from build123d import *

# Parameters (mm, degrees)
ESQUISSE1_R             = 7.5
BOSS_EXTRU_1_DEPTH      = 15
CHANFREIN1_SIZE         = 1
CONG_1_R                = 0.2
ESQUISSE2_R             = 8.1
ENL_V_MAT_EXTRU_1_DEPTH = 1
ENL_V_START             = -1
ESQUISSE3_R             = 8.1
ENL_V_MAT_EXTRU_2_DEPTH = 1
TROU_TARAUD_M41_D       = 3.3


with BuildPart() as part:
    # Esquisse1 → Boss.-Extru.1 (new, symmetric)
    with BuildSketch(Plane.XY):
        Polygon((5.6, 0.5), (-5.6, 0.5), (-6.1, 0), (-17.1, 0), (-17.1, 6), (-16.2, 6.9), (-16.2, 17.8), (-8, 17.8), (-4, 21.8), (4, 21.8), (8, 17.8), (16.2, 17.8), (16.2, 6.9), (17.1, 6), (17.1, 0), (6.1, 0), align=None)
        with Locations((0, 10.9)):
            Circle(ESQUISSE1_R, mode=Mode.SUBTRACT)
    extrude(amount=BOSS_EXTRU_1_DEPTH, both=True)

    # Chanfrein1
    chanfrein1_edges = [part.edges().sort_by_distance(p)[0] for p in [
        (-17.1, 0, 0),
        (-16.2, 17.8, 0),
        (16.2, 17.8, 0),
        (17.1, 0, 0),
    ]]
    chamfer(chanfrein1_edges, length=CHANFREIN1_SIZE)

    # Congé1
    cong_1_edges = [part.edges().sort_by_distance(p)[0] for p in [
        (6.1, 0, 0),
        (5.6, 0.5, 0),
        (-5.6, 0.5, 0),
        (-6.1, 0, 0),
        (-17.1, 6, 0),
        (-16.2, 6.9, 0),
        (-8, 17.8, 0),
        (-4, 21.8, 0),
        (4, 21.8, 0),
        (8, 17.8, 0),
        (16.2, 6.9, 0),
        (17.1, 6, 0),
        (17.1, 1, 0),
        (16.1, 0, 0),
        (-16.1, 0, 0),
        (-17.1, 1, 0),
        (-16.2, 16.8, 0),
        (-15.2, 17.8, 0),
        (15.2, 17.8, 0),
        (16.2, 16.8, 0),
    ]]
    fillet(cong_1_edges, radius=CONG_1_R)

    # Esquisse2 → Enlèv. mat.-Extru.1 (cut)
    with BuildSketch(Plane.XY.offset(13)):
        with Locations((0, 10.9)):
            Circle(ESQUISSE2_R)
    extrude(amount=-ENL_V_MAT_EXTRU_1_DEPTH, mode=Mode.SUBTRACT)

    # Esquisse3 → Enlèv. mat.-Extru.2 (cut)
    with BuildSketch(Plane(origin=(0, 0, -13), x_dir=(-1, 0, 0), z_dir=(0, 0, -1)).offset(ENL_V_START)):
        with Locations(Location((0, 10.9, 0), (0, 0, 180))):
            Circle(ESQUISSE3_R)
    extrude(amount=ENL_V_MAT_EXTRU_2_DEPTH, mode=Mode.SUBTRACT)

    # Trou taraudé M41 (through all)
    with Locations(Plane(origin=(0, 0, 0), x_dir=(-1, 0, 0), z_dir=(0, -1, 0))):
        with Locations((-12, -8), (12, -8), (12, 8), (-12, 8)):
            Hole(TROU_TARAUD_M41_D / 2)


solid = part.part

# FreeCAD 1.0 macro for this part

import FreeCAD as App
import Part
import Sketcher
from FreeCAD import Vector
Q = App.Units.Quantity


def edges_at(feature, points):
    """Names of the edges that pass closest to the given points."""
    edges = feature.Shape.Edges
    near = lambda p: min(range(len(edges)), key=lambda i: edges[i].distToShape(Part.Vertex(*p))[0])
    return sorted({f"Edge{near(p) + 1}" for p in points})

doc = App.newDocument("Part")
params = doc.addObject("Spreadsheet::Sheet", "Params")
for row, (alias, value) in enumerate([
    ("sketch1_diameter", "15 mm"),
    ("sketch1_width", "11 mm"),
    ("sketch1_width2", "8 mm"),
    ("sketch1_height", "6 mm"),
    ("sketch1_width3", "11.2 mm"),
    ("pad1_length", "30 mm"),
    ("chamfer_size", "1 mm"),
    ("fillet_radius", "0.2 mm"),
    ("sketch2_diameter", "16.2 mm"),
    ("pocket1_length", "1 mm"),
    ("sketch3_diameter", "16.2 mm"),
    ("pocket2_length", "1 mm"),
    ("sketch4_diameter", "3.3 mm"),
    ("hole_diameter", "3.3 mm"),
], start=1):
    params.set(f"A{row}", alias)
    params.set(f"B{row}", "=" + value)
    params.setAlias(f"B{row}", alias)

body = doc.addObject("PartDesign::Body", "Body")

# Sketch on XY plane
sketch1 = body.newObject("Sketcher::SketchObject", "Sketch")
sketch1.AttachmentSupport = (doc.getObject("XY_Plane"), [""])
sketch1.MapMode = "FlatFace"
sketch1.addGeometry([
    Part.LineSegment(Vector(-5.6, 0.5, 0), Vector(5.6, 0.5, 0)),  # 0
    Part.LineSegment(Vector(5.6, 0.5, 0), Vector(6.1, 0, 0)),  # 1
    Part.LineSegment(Vector(6.1, 0, 0), Vector(17.1, 0, 0)),  # 2
    Part.LineSegment(Vector(17.1, 0, 0), Vector(17.1, 6, 0)),  # 3
    Part.LineSegment(Vector(17.1, 6, 0), Vector(16.2, 6.9, 0)),  # 4
    Part.LineSegment(Vector(16.2, 6.9, 0), Vector(16.2, 17.8, 0)),  # 5
    Part.LineSegment(Vector(16.2, 17.8, 0), Vector(8, 17.8, 0)),  # 6
    Part.LineSegment(Vector(8, 17.8, 0), Vector(4, 21.8, 0)),  # 7
    Part.LineSegment(Vector(4, 21.8, 0), Vector(-4, 21.8, 0)),  # 8
    Part.LineSegment(Vector(-4, 21.8, 0), Vector(-8, 17.8, 0)),  # 9
    Part.LineSegment(Vector(-8, 17.8, 0), Vector(-16.2, 17.8, 0)),  # 10
    Part.LineSegment(Vector(-16.2, 17.8, 0), Vector(-16.2, 6.9, 0)),  # 11
    Part.LineSegment(Vector(-16.2, 6.9, 0), Vector(-17.1, 6, 0)),  # 12
    Part.LineSegment(Vector(-17.1, 6, 0), Vector(-17.1, 0, 0)),  # 13
    Part.LineSegment(Vector(-17.1, 0, 0), Vector(-6.1, 0, 0)),  # 14
    Part.LineSegment(Vector(-6.1, 0, 0), Vector(-5.6, 0.5, 0)),  # 15
    Part.Circle(Vector(0, 10.9, 0), Vector(0, 0, 1), 7.5),  # 16
], False)
sketch1.addConstraint([
    Sketcher.Constraint("Coincident", 0, 2, 1, 1),
    Sketcher.Constraint("Coincident", 1, 2, 2, 1),
    Sketcher.Constraint("Coincident", 2, 2, 3, 1),
    Sketcher.Constraint("Coincident", 3, 2, 4, 1),
    Sketcher.Constraint("Coincident", 4, 2, 5, 1),
    Sketcher.Constraint("Coincident", 5, 2, 6, 1),
    Sketcher.Constraint("Coincident", 6, 2, 7, 1),
    Sketcher.Constraint("Coincident", 7, 2, 8, 1),
    Sketcher.Constraint("Coincident", 8, 2, 9, 1),
    Sketcher.Constraint("Coincident", 9, 2, 10, 1),
    Sketcher.Constraint("Coincident", 10, 2, 11, 1),
    Sketcher.Constraint("Coincident", 11, 2, 12, 1),
    Sketcher.Constraint("Coincident", 12, 2, 13, 1),
    Sketcher.Constraint("Coincident", 13, 2, 14, 1),
    Sketcher.Constraint("Coincident", 14, 2, 15, 1),
    Sketcher.Constraint("Coincident", 15, 2, 0, 1),
    Sketcher.Constraint("Horizontal", 0),
    Sketcher.Constraint("Horizontal", 2),
    Sketcher.Constraint("Vertical", 3),
    Sketcher.Constraint("Vertical", 5),
    Sketcher.Constraint("Horizontal", 6),
    Sketcher.Constraint("Horizontal", 8),
    Sketcher.Constraint("Horizontal", 10),
    Sketcher.Constraint("Vertical", 11),
    Sketcher.Constraint("Vertical", 13),
    Sketcher.Constraint("Horizontal", 14),
    Sketcher.Constraint("Symmetric", 2, 2, 13, 2, -1, 1),
    Sketcher.Constraint("Symmetric", 6, 2, 9, 2, -2),
    Sketcher.Constraint("Symmetric", 4, 2, 11, 2, -2),
    Sketcher.Constraint("Symmetric", 1, 2, 14, 2, -2),
    Sketcher.Constraint("PointOnObject", 16, 3, -2),
    Sketcher.Constraint("Parallel", 1, 4),
    Sketcher.Constraint("Parallel", 4, 7),
    Sketcher.Constraint("Perpendicular", 7, 9),
    Sketcher.Constraint("Parallel", 9, 12),
    Sketcher.Constraint("Parallel", 12, 15),
    Sketcher.Constraint("Horizontal", 3, 2, 12, 2),
    Sketcher.Constraint("Diameter", 16, Q("15 mm")),
    Sketcher.Constraint("DistanceX", 2, 1, 2, 2, Q("11 mm")),
    Sketcher.Constraint("DistanceX", 8, 2, 8, 1, Q("8 mm")),
    Sketcher.Constraint("DistanceY", 3, 1, 3, 2, Q("6 mm")),
    Sketcher.Constraint("DistanceX", 0, 1, 0, 2, Q("11.2 mm")),
    Sketcher.Constraint("DistanceX", 6, 2, 6, 1, Q("8.2 mm")),
    Sketcher.Constraint("DistanceY", 5, 1, 5, 2, Q("10.9 mm")),
    Sketcher.Constraint("DistanceX", -1, 1, 6, 2, Q("8 mm")),
    Sketcher.Constraint("DistanceY", 4, 2, 16, 3, Q("4 mm")),
    Sketcher.Constraint("DistanceY", -1, 1, 16, 3, Q("10.9 mm")),
])
sketch1.setExpression("Constraints[37]", "Params.sketch1_diameter")
sketch1.setExpression("Constraints[38]", "Params.sketch1_width")
sketch1.setExpression("Constraints[39]", "Params.sketch1_width2")
sketch1.setExpression("Constraints[40]", "Params.sketch1_height")
sketch1.setExpression("Constraints[41]", "Params.sketch1_width3")
pad1 = body.newObject("PartDesign::Pad", "Pad")
pad1.Profile = sketch1
pad1.setExpression("Length", "Params.pad1_length")
pad1.Midplane = True
doc.recompute()

chamfer = body.newObject("PartDesign::Chamfer", "Chamfer")
chamfer.Base = (pad1, edges_at(pad1, [
    (-17.1, 0, 0),
    (-16.2, 17.8, 0),
    (16.2, 17.8, 0),
    (17.1, 0, 0),
]))
chamfer.setExpression("Size", "Params.chamfer_size")
doc.recompute()

fillet = body.newObject("PartDesign::Fillet", "Fillet")
fillet.Base = (chamfer, edges_at(chamfer, [
    (6.1, 0, 0),
    (5.6, 0.5, 0),
    (-5.6, 0.5, 0),
    (-6.1, 0, 0),
    (-17.1, 6, 0),
    (-16.2, 6.9, 0),
    (-8, 17.8, 0),
    (-4, 21.8, 0),
    (4, 21.8, 0),
    (8, 17.8, 0),
    (16.2, 6.9, 0),
    (17.1, 6, 0),
    (17.1, 1, 0),
    (16.1, 0, 0),
    (-16.1, 0, 0),
    (-17.1, 1, 0),
    (-16.2, 16.8, 0),
    (-15.2, 17.8, 0),
    (15.2, 17.8, 0),
    (16.2, 16.8, 0),
]))
fillet.setExpression("Radius", "Params.fillet_radius")

# Sketch on XY plane
sketch2 = body.newObject("Sketcher::SketchObject", "Sketch001")
sketch2.AttachmentSupport = (doc.getObject("XY_Plane"), [""])
sketch2.MapMode = "FlatFace"
sketch2.AttachmentOffset = App.Placement(Vector(0, 0, 13), App.Rotation())
sketch2.addGeometry(Part.Circle(Vector(0, 10.9, 0), Vector(0, 0, 1), 8.1), False)
sketch2.addConstraint([
    Sketcher.Constraint("PointOnObject", 0, 3, -2),
    Sketcher.Constraint("Diameter", 0, Q("16.2 mm")),
    Sketcher.Constraint("DistanceY", -1, 1, 0, 3, Q("10.9 mm")),
])
sketch2.setExpression("Constraints[1]", "Params.sketch2_diameter")
pocket1 = body.newObject("PartDesign::Pocket", "Pocket")
pocket1.Profile = sketch2
pocket1.setExpression("Length", "Params.pocket1_length")

# Sketch on XY plane
sketch3 = body.newObject("Sketcher::SketchObject", "Sketch002")
sketch3.AttachmentSupport = (doc.getObject("XY_Plane"), [""])
sketch3.MapMode = "FlatFace"
sketch3.AttachmentOffset = App.Placement(Vector(0, 0, -12), App.Rotation())
sketch3.addGeometry(Part.Circle(Vector(0, 10.9, 0), Vector(0, 0, 1), 8.1), False)
sketch3.addConstraint([
    Sketcher.Constraint("PointOnObject", 0, 3, -2),
    Sketcher.Constraint("Diameter", 0, Q("16.2 mm")),
    Sketcher.Constraint("DistanceY", -1, 1, 0, 3, Q("10.9 mm")),
])
sketch3.setExpression("Constraints[1]", "Params.sketch3_diameter")
pocket2 = body.newObject("PartDesign::Pocket", "Pocket001")
pocket2.Profile = sketch3
pocket2.setExpression("Length", "Params.pocket2_length")

# Sketch on XZ plane
sketch4 = body.newObject("Sketcher::SketchObject", "Sketch003")
sketch4.AttachmentSupport = (doc.getObject("XZ_Plane"), [""])
sketch4.MapMode = "FlatFace"
sketch4.addGeometry([
    Part.Circle(Vector(12, 8, 0), Vector(0, 0, 1), 1.65),
    Part.Circle(Vector(-12, 8, 0), Vector(0, 0, 1), 1.65),
    Part.Circle(Vector(-12, -8, 0), Vector(0, 0, 1), 1.65),
    Part.Circle(Vector(12, -8, 0), Vector(0, 0, 1), 1.65),
], False)
sketch4.addConstraint([
    Sketcher.Constraint("Equal", 0, 1),
    Sketcher.Constraint("Equal", 1, 2),
    Sketcher.Constraint("Equal", 2, 3),
    Sketcher.Constraint("Symmetric", 0, 3, 2, 3, -1, 1),
    Sketcher.Constraint("Symmetric", 1, 3, 3, 3, -1, 1),
    Sketcher.Constraint("Symmetric", 0, 3, 1, 3, -2),
    Sketcher.Constraint("Diameter", 0, Q("3.3 mm")),
    Sketcher.Constraint("DistanceX", -1, 1, 0, 3, Q("12 mm")),
    Sketcher.Constraint("DistanceY", -1, 1, 0, 3, Q("8 mm")),
])
sketch4.setExpression("Constraints[6]", "Params.sketch4_diameter")
doc.recompute()
hole = body.newObject("PartDesign::Hole", "Hole")
hole.Profile = sketch4
hole.ThreadType = "None"
hole.setExpression("Diameter", "Params.hole_diameter")
hole.DepthType = "ThroughAll"

doc.recompute()
